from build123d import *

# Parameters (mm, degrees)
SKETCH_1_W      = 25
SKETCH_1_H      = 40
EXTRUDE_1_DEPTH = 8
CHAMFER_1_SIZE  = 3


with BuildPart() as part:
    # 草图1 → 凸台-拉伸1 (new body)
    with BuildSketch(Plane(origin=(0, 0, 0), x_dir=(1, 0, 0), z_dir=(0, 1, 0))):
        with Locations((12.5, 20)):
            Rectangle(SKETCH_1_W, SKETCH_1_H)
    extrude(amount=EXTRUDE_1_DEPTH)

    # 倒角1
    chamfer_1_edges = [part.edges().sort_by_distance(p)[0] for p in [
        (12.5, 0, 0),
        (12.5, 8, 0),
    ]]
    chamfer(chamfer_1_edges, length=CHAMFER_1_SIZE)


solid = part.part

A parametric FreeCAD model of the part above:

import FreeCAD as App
import Part
import Sketcher
Q = App.Units.Quantity


def edges_at(feature, points):
    """Names of the edges that pass closest to the given points."""
    edges = feature.Shape.Edges
    near = lambda p: min(range(len(edges)), key=lambda i: edges[i].distToShape(Part.Vertex(*p))[0])
    return sorted({f"Edge{near(p) + 1}" for p in points})


def add_polygon(sketch, points):
    """Adds a closed chain of lines whose ends are joined by coincident constraints."""
    first, n = sketch.GeometryCount, len(points)
    for a, b in zip(points, points[1:] + points[:1]):
        sketch.addGeometry(Part.LineSegment(App.Vector(*a, 0), App.Vector(*b, 0)), False)
    for i in range(n):
        sketch.addConstraint(Sketcher.Constraint("Coincident", first + i, 2, first + (i + 1) % n, 1))

doc = App.newDocument("Part")
body = doc.addObject("PartDesign::Body", "Body")

sketch1 = body.newObject("Sketcher::SketchObject", "Sketch")
sketch1.AttachmentSupport = (doc.getObject("XZ_Plane"), [""])
sketch1.MapMode = "FlatFace"
add_polygon(sketch1, [(0, -40), (0, 0), (25, 0), (25, -40)])
sketch1.addConstraint(Sketcher.Constraint("Vertical", 0))
sketch1.addConstraint(Sketcher.Constraint("Horizontal", 1))
sketch1.addConstraint(Sketcher.Constraint("Vertical", 2))
sketch1.addConstraint(Sketcher.Constraint("Horizontal", 3))
sketch1.addConstraint(Sketcher.Constraint("Coincident", 0, 2, -1, 1))
sketch1.addConstraint(Sketcher.Constraint("DistanceX", 1, 1, 1, 2, Q("25 mm")))
sketch1.addConstraint(Sketcher.Constraint("DistanceY", 0, 1, 0, 2, Q("40 mm")))
pad1 = body.newObject("PartDesign::Pad", "Pad")
pad1.Profile = sketch1
pad1.Length = 8
pad1.Reversed = True
doc.recompute()

chamfer = body.newObject("PartDesign::Chamfer", "Chamfer")
chamfer.Base = (pad1, edges_at(pad1, [(12.5, 0, 0), (12.5, 8, 0)]))
chamfer.Size = 3

doc.recompute()
